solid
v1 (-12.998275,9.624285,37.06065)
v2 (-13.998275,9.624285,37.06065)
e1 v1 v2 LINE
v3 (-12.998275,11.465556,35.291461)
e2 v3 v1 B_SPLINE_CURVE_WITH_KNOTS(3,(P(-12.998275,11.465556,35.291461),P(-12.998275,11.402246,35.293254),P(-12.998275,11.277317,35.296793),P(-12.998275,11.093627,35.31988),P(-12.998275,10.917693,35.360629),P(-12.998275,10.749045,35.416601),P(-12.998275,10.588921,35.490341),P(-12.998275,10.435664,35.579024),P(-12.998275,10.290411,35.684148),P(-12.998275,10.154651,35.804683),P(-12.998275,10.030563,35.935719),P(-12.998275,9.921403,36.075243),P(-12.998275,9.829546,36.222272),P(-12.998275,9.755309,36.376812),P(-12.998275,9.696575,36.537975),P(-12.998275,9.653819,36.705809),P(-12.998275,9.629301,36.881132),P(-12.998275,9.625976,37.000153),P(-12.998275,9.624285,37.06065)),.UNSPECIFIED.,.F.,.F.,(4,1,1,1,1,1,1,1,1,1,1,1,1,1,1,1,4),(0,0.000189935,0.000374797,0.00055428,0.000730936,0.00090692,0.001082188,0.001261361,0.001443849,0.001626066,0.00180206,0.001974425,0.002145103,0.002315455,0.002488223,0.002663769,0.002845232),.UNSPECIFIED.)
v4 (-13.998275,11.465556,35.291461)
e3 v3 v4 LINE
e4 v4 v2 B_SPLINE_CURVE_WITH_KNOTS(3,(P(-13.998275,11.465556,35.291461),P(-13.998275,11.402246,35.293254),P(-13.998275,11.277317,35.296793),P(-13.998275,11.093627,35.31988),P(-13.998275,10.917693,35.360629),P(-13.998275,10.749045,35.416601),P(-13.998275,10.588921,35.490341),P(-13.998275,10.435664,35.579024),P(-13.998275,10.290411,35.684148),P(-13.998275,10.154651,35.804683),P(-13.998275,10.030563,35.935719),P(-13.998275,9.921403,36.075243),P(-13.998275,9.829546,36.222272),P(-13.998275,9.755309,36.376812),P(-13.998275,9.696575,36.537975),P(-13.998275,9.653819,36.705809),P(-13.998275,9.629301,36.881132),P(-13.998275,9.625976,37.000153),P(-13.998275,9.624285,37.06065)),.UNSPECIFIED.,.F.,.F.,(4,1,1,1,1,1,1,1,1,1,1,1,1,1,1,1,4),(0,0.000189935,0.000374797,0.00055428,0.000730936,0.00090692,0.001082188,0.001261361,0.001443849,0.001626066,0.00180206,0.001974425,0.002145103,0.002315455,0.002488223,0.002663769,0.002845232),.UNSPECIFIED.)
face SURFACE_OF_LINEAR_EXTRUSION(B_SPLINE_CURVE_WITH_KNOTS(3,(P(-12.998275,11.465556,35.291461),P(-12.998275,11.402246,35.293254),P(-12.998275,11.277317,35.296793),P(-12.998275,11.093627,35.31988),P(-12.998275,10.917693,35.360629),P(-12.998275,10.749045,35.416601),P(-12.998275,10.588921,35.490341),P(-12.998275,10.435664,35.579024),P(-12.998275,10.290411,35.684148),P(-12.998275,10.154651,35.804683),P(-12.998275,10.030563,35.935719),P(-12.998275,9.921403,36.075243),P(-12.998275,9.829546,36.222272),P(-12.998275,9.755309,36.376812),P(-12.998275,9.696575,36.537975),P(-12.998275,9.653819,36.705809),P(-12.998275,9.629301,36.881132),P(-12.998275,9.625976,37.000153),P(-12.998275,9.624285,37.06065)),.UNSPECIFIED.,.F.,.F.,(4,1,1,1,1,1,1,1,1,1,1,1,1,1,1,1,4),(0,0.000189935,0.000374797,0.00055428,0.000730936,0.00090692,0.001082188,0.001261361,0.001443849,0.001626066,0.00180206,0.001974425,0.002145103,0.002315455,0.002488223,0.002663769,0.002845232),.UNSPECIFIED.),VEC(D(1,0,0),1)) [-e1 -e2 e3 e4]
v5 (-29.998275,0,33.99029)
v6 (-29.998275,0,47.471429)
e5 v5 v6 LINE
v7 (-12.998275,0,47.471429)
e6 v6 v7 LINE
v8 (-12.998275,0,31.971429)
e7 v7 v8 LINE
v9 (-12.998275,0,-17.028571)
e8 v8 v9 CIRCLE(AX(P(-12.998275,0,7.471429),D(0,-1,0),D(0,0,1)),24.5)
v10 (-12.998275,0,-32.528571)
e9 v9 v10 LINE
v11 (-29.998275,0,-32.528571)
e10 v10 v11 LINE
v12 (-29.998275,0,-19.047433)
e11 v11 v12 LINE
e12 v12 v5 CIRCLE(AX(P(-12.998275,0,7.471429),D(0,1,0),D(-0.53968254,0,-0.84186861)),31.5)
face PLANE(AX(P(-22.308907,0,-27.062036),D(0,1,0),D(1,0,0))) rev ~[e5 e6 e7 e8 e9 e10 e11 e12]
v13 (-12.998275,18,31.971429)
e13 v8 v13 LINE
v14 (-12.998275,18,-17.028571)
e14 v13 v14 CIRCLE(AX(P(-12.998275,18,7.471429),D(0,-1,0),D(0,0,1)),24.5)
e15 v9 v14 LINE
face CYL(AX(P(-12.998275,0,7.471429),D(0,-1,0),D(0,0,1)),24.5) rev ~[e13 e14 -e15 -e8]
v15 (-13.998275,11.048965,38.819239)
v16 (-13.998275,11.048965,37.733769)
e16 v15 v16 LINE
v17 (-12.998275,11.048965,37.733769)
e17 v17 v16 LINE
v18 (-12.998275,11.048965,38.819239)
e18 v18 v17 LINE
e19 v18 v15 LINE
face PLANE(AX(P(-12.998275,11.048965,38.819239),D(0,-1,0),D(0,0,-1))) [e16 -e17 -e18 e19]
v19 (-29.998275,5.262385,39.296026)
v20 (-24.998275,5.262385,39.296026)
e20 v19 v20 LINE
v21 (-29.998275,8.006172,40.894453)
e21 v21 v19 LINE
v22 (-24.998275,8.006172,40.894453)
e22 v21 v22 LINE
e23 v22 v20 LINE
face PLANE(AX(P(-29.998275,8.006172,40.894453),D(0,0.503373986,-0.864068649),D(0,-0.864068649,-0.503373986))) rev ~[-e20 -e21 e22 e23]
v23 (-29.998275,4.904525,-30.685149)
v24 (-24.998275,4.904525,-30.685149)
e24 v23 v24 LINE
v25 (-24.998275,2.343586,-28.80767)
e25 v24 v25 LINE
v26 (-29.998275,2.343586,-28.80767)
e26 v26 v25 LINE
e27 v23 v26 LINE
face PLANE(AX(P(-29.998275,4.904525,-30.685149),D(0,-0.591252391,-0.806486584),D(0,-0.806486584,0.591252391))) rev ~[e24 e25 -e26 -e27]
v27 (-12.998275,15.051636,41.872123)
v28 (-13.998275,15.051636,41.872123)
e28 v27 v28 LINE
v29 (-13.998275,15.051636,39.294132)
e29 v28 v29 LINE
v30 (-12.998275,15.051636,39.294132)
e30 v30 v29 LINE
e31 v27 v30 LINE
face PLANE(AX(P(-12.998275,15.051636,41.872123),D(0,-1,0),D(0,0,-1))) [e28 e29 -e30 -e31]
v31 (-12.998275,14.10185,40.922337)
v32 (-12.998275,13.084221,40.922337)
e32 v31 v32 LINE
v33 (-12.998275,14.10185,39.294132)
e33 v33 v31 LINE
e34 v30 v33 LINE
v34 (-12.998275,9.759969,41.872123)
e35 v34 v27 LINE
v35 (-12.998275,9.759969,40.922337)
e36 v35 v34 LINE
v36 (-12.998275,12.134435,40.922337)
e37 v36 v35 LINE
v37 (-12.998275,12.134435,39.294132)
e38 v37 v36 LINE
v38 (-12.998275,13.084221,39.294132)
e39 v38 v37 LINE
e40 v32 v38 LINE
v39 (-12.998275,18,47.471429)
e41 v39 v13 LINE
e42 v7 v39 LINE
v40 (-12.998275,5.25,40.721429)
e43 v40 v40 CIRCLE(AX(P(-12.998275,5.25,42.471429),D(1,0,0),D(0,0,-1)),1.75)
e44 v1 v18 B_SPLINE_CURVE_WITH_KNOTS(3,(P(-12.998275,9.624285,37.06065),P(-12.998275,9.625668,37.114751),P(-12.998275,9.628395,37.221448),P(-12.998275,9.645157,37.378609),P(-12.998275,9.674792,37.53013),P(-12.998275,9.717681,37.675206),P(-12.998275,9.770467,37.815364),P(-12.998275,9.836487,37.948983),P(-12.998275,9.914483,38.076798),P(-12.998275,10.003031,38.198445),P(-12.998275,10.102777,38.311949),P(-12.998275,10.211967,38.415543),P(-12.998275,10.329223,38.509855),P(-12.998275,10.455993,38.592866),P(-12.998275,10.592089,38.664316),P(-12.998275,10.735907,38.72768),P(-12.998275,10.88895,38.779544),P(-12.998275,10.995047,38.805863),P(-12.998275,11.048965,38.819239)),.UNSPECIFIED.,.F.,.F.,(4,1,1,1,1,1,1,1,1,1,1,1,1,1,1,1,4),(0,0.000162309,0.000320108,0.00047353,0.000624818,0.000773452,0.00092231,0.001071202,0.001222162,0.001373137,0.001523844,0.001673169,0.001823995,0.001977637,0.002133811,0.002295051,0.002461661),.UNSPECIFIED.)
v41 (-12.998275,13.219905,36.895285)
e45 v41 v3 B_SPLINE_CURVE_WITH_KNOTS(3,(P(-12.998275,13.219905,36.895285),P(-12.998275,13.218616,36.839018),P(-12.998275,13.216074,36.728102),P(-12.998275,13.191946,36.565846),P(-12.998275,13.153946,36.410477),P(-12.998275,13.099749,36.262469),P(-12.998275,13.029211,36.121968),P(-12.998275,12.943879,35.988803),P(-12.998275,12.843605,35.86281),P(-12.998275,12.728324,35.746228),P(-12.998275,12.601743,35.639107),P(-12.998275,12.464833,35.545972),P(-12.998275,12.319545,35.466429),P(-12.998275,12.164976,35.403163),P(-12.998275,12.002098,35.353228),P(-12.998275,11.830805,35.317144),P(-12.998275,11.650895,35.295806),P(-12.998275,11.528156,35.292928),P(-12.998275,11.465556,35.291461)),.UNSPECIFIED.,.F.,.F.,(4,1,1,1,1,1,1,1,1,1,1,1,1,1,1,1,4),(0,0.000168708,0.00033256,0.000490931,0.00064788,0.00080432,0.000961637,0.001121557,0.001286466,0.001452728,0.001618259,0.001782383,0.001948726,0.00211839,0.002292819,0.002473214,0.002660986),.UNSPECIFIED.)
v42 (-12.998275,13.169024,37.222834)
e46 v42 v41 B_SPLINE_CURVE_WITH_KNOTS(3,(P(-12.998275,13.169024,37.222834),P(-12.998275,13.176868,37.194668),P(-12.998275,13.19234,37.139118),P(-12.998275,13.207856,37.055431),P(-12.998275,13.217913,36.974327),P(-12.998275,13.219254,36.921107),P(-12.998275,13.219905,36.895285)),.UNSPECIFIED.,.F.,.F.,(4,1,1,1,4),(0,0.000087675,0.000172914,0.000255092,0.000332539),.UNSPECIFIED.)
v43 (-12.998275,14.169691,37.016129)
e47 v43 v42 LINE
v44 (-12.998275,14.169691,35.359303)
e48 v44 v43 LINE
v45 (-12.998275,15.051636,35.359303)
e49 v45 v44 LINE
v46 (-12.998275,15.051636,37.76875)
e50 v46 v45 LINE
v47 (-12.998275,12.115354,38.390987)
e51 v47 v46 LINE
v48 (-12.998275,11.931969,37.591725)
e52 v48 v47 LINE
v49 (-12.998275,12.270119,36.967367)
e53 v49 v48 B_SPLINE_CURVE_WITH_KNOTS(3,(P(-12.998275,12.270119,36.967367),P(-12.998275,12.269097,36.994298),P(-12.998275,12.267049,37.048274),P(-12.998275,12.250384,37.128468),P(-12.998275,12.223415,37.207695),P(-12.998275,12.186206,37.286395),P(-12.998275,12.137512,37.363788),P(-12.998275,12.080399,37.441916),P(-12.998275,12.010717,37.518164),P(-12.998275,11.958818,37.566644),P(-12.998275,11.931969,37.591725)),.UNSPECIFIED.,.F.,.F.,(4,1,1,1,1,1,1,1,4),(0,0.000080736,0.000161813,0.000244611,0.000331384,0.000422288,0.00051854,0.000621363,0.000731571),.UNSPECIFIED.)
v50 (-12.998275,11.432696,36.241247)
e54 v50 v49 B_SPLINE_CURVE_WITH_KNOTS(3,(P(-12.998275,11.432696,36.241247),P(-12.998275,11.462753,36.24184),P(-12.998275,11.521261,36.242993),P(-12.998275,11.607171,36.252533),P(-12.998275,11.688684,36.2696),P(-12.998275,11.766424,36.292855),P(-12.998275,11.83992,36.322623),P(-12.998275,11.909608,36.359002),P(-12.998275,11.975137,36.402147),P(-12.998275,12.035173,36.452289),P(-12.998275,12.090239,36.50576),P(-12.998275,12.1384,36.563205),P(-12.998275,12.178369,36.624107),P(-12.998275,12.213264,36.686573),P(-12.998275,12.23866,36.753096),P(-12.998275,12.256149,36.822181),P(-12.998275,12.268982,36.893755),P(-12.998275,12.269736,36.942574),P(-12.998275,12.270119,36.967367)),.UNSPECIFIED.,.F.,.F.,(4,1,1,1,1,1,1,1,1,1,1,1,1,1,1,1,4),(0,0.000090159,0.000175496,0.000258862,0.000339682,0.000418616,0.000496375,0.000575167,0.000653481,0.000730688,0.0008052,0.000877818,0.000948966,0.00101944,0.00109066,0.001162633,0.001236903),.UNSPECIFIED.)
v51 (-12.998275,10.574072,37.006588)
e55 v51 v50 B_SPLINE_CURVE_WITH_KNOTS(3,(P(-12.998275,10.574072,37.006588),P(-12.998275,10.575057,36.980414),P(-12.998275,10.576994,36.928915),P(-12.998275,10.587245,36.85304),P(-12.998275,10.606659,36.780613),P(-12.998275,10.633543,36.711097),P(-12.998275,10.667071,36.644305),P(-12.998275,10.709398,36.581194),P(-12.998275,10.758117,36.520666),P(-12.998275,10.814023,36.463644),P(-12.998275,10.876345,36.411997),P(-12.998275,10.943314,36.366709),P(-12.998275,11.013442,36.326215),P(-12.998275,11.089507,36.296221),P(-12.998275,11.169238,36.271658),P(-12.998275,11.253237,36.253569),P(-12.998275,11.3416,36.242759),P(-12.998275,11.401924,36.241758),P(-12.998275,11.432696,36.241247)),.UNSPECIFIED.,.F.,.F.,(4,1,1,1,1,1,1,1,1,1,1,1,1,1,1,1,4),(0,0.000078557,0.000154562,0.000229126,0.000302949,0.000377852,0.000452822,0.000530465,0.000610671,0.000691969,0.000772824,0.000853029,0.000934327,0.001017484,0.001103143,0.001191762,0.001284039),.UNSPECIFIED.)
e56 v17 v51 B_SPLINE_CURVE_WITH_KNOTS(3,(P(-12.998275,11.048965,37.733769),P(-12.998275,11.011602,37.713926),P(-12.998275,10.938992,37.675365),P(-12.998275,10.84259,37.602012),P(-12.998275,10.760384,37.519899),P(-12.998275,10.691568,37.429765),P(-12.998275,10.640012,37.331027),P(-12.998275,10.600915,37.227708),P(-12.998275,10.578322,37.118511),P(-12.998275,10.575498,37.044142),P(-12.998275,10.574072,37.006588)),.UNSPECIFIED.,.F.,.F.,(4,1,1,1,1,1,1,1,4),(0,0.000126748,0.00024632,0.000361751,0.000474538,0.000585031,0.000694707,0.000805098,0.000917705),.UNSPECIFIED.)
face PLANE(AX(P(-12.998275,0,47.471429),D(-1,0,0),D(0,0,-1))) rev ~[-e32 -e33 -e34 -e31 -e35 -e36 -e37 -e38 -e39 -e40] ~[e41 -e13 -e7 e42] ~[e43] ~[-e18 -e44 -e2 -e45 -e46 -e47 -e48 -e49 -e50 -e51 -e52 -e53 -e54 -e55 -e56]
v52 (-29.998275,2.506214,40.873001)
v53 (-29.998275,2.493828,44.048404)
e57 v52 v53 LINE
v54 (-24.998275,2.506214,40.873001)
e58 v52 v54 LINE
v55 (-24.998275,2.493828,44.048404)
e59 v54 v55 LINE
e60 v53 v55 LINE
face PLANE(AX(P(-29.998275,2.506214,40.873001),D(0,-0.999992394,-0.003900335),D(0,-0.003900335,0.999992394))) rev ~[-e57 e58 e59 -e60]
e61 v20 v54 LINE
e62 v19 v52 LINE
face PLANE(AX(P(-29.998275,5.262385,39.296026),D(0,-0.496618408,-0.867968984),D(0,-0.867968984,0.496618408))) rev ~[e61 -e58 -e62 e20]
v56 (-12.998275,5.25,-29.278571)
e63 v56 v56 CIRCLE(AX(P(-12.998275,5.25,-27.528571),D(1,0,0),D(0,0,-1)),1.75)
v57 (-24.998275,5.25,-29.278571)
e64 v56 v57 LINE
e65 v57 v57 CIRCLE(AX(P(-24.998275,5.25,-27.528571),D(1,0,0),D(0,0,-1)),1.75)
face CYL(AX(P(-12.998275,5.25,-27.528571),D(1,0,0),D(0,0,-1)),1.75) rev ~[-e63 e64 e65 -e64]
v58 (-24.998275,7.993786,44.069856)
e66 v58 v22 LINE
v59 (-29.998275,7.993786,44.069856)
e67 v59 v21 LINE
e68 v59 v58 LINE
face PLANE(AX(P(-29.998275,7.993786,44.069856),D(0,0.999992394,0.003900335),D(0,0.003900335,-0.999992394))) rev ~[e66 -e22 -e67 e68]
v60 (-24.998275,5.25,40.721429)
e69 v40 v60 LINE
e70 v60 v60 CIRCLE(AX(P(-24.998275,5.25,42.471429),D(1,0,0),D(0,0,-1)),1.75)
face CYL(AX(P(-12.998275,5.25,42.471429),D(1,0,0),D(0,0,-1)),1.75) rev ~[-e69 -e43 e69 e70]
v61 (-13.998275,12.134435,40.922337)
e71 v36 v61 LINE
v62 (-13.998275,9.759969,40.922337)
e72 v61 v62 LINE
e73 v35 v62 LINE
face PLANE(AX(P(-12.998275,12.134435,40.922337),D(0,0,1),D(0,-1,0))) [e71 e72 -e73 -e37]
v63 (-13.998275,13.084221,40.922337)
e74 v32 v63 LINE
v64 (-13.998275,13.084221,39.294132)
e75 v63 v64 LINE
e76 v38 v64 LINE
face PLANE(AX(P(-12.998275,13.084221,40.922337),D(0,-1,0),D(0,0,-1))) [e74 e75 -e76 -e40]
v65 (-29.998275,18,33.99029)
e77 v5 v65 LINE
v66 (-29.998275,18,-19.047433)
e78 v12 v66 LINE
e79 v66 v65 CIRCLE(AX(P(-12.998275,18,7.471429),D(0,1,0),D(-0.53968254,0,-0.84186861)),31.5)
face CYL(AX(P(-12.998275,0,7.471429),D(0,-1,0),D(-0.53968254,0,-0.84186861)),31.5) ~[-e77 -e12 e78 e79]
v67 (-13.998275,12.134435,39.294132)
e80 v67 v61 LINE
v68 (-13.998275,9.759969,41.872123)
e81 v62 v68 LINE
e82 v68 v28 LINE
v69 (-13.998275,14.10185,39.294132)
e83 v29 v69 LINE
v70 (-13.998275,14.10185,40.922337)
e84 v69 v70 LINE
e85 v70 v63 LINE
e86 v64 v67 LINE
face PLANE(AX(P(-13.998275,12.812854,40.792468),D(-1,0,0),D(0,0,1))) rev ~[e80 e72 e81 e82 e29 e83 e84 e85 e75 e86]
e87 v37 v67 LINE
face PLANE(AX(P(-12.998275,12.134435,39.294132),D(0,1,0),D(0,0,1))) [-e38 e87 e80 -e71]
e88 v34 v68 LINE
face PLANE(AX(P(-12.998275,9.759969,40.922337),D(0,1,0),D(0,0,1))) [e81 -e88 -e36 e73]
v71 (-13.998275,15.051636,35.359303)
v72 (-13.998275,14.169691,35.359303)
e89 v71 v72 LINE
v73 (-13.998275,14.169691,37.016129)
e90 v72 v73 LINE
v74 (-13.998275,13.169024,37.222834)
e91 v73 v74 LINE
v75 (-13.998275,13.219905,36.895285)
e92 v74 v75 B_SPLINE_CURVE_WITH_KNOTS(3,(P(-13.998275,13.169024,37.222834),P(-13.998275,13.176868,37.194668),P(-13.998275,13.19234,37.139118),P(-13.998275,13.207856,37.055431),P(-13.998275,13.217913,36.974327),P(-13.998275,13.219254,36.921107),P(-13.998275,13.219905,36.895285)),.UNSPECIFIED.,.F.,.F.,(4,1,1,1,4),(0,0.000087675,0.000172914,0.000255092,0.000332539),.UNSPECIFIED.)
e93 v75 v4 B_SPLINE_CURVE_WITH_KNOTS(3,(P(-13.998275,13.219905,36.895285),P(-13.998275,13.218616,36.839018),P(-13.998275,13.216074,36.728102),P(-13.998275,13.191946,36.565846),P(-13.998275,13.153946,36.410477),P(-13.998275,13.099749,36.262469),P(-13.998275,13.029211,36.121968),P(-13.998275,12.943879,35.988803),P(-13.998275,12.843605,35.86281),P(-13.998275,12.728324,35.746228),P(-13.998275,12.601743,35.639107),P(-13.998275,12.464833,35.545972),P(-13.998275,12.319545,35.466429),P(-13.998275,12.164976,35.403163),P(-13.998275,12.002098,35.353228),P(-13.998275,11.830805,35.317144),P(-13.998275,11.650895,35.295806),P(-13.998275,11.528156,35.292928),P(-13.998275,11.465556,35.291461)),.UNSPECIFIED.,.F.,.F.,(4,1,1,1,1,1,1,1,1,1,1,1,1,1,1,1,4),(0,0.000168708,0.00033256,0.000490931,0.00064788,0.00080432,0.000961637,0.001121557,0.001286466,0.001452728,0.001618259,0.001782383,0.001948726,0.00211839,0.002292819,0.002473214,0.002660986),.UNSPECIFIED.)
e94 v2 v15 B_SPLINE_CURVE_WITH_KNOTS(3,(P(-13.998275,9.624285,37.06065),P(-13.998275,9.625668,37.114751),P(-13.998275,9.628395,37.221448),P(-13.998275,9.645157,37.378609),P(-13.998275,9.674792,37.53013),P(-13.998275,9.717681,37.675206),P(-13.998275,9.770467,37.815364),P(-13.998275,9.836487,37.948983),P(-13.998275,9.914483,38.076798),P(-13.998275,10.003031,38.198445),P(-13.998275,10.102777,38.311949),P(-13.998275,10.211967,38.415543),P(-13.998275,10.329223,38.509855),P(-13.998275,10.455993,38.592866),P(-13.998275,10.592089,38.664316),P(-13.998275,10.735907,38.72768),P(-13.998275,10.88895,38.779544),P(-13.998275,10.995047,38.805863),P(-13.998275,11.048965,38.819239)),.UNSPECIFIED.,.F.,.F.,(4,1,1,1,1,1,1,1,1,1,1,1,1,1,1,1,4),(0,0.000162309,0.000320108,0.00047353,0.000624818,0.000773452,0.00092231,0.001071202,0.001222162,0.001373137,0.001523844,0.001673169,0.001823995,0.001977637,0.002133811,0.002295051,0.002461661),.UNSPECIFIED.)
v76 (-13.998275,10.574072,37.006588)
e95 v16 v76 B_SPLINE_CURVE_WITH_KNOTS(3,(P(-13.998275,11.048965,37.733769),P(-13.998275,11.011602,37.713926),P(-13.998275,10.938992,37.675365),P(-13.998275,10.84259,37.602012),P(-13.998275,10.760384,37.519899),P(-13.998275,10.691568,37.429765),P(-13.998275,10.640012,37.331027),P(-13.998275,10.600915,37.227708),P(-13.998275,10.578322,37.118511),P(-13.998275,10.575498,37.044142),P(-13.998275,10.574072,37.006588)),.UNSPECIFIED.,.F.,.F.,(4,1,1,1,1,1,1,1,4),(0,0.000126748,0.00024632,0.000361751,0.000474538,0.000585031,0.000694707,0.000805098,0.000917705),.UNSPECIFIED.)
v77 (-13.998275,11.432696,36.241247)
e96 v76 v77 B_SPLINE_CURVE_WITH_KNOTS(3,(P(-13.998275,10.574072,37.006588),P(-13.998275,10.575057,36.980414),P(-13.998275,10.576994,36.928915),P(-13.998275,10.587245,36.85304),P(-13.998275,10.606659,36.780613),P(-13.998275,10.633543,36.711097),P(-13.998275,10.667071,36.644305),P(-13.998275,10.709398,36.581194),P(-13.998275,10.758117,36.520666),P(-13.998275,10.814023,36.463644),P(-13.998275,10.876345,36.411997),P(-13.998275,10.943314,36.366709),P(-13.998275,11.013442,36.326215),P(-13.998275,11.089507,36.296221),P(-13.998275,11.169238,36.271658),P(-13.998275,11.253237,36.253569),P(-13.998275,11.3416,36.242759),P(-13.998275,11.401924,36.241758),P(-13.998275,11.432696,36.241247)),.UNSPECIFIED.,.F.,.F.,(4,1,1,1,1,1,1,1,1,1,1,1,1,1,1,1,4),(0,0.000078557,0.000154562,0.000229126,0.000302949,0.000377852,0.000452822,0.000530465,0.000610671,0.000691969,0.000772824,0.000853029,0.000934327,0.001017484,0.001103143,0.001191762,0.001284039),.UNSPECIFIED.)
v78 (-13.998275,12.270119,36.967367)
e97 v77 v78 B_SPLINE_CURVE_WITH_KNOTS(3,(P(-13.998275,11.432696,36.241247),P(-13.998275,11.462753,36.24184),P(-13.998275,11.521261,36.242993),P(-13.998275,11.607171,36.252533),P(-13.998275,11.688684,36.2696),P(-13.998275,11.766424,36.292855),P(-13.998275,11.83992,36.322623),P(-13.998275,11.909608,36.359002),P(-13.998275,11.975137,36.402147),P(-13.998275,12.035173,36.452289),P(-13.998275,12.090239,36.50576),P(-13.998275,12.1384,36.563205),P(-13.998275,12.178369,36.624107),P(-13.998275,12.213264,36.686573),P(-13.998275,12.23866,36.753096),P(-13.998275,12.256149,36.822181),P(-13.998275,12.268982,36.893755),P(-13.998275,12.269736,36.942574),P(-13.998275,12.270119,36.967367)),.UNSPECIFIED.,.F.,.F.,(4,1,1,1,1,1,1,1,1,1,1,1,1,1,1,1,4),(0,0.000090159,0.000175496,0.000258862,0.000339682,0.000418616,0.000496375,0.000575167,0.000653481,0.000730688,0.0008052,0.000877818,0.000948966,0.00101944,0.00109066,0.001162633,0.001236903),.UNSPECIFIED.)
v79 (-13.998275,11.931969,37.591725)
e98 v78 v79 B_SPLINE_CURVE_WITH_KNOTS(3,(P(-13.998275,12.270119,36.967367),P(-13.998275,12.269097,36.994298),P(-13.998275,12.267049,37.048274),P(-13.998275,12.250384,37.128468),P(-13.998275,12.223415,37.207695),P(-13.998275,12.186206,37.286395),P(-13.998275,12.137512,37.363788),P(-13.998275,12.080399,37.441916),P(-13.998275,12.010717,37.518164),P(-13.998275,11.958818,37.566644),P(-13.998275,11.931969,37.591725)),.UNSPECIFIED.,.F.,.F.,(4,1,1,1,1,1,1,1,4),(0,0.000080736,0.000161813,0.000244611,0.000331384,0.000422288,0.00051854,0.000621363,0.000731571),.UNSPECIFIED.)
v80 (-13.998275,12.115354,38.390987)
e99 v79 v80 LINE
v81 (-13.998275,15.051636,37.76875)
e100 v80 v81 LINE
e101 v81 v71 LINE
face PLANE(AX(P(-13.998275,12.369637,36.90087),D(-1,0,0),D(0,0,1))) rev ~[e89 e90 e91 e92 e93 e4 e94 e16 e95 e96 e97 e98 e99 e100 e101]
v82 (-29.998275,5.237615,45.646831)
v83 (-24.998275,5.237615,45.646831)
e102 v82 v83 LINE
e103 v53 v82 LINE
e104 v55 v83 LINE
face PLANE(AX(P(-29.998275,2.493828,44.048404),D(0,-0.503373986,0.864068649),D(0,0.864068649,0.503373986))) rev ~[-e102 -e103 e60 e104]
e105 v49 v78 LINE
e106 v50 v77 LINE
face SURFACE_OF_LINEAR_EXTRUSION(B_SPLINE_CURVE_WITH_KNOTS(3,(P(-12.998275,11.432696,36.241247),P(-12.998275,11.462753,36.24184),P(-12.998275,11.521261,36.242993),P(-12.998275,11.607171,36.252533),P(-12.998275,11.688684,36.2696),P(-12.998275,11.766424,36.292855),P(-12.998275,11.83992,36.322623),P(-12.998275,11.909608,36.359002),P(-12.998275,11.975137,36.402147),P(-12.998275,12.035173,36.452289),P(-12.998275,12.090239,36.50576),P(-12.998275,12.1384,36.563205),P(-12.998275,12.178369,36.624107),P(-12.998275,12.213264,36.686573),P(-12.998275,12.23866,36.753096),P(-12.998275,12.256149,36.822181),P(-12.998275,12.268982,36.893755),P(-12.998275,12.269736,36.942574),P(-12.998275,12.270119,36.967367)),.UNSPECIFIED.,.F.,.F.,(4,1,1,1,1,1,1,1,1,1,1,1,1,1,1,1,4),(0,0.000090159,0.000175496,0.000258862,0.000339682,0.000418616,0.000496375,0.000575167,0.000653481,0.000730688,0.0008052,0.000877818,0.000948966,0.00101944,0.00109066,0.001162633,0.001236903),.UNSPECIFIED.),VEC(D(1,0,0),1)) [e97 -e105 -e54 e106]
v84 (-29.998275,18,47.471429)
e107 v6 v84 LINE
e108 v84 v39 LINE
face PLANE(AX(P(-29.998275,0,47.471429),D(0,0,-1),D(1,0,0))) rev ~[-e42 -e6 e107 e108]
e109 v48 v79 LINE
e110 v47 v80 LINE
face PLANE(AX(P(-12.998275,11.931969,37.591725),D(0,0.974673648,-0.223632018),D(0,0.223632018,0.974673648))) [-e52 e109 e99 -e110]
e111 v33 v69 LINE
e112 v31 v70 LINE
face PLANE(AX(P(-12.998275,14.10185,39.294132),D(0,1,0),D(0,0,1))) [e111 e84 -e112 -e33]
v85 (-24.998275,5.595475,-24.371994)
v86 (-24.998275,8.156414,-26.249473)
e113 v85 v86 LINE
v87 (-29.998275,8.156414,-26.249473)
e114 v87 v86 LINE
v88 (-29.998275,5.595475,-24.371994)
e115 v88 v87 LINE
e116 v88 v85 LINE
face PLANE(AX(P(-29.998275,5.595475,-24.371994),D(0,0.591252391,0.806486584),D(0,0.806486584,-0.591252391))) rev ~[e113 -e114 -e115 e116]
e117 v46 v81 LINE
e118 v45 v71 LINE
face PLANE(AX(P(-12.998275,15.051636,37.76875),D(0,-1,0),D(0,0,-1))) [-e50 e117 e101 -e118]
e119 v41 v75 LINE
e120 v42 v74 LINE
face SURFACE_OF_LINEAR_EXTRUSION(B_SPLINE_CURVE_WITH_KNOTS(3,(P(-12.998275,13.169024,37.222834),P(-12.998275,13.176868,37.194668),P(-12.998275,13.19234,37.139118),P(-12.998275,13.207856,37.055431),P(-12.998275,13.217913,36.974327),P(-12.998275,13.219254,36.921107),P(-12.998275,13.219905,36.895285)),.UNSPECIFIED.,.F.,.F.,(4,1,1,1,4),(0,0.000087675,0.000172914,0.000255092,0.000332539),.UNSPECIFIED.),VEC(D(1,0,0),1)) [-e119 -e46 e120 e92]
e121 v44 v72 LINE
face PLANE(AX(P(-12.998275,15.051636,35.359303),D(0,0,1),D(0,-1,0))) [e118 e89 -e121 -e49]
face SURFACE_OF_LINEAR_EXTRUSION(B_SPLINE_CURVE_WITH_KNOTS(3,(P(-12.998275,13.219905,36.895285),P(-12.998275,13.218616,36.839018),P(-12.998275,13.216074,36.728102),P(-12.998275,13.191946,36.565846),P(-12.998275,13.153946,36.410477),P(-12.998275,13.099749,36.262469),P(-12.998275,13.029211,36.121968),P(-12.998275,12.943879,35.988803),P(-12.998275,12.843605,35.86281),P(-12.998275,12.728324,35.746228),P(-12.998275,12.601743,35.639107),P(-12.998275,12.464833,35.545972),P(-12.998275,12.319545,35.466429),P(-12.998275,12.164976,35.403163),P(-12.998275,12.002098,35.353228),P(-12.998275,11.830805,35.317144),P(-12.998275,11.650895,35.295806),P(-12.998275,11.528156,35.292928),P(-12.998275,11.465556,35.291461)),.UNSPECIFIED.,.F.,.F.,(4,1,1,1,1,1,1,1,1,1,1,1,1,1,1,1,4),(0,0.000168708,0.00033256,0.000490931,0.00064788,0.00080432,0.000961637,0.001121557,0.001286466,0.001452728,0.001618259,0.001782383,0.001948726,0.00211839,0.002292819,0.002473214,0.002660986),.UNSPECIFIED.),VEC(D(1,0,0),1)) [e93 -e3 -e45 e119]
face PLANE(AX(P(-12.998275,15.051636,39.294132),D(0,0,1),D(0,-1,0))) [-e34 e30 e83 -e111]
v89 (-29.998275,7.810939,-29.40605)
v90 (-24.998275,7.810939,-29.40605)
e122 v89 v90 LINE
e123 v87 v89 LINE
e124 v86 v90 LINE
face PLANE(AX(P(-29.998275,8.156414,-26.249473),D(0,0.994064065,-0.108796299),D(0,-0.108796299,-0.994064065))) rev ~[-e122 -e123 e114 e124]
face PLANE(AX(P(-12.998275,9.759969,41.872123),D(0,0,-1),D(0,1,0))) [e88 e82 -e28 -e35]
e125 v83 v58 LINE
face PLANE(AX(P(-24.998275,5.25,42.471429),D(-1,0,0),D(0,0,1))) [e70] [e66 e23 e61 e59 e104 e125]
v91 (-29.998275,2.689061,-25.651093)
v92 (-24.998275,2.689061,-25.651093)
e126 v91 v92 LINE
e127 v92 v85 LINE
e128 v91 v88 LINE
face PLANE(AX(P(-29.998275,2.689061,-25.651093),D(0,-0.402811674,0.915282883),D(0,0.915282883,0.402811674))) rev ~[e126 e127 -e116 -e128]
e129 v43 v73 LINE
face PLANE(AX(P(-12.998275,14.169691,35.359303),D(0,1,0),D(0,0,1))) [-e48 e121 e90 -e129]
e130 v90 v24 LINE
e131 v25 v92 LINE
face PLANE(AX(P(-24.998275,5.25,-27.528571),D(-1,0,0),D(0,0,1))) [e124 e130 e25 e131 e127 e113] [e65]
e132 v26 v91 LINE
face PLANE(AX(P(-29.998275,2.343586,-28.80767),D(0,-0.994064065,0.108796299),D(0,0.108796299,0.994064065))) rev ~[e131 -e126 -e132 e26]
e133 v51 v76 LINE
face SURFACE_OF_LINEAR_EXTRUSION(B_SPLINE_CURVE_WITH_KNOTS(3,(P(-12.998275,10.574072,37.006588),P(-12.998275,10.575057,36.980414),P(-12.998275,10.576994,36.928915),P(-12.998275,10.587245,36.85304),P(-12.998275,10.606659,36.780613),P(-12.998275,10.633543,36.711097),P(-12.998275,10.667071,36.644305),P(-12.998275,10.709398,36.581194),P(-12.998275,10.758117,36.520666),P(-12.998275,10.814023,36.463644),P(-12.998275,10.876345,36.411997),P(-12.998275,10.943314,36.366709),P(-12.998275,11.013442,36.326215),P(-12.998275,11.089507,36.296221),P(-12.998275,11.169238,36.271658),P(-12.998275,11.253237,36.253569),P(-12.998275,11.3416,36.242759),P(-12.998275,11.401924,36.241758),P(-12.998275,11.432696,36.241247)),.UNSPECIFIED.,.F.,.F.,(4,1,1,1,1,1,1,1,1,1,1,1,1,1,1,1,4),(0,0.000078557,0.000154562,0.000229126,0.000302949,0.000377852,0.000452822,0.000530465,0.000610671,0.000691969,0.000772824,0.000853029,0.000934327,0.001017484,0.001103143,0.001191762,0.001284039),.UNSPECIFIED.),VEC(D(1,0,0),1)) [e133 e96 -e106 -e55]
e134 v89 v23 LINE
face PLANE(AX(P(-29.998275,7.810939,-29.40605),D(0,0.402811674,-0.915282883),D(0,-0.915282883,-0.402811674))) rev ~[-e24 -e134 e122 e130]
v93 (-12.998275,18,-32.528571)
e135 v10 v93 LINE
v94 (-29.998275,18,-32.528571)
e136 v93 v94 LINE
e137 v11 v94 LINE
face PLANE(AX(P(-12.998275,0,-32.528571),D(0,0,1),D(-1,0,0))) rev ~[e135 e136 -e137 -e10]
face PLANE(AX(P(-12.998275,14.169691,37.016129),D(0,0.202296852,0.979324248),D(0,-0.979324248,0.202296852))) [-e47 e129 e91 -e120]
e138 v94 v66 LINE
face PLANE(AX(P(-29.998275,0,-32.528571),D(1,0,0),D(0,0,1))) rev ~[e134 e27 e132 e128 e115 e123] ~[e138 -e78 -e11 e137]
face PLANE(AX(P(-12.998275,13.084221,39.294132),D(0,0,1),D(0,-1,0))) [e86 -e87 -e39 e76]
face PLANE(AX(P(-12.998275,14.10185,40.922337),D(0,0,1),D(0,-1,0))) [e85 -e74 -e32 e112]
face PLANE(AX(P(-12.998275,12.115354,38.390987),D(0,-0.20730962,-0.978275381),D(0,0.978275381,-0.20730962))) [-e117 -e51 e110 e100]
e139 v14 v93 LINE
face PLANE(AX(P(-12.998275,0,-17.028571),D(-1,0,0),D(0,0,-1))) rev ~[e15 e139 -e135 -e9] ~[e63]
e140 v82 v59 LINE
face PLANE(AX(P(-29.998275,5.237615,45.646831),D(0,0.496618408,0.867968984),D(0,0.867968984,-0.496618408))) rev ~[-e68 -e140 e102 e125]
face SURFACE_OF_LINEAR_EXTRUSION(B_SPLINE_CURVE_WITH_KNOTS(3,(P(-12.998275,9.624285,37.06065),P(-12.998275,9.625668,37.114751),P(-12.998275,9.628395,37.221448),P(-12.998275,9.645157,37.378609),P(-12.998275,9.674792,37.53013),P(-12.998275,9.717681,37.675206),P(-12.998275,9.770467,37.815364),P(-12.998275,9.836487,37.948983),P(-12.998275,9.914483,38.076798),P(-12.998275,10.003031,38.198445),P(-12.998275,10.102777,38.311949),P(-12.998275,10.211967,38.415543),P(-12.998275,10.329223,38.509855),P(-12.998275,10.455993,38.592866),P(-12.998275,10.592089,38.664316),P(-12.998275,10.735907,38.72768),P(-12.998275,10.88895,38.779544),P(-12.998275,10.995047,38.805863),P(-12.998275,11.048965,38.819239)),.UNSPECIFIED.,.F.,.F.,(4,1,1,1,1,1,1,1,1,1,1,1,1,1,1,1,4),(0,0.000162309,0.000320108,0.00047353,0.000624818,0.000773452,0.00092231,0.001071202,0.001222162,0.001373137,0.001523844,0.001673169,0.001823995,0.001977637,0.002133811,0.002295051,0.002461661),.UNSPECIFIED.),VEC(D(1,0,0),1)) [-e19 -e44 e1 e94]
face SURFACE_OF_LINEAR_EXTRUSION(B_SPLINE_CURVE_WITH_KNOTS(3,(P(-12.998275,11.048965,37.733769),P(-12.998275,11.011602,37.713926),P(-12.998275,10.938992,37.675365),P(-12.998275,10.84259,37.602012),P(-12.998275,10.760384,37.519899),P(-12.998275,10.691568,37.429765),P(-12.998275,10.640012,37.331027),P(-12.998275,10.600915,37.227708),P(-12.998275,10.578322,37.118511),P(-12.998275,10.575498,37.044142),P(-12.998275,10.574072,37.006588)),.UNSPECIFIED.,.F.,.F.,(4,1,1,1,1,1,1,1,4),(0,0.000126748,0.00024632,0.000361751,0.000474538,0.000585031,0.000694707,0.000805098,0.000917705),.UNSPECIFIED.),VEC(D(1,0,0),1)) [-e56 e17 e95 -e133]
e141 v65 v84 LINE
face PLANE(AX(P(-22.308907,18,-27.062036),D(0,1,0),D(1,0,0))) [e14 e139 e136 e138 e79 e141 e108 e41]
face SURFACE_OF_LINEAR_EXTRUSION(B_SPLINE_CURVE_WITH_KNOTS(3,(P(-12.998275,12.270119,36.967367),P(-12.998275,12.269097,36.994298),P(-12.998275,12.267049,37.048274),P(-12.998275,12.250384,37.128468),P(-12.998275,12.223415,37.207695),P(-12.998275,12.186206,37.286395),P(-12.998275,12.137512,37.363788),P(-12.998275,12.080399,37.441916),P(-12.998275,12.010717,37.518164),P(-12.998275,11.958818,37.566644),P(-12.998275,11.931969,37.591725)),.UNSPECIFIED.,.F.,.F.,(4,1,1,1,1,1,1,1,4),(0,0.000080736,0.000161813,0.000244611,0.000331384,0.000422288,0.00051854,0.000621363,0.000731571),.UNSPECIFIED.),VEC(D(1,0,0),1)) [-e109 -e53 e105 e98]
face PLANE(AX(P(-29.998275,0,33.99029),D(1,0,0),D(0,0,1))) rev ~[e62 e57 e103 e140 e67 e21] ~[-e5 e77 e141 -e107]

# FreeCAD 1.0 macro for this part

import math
import FreeCAD as App
import Part
import Sketcher

doc = App.newDocument("Part")
body = doc.addObject("PartDesign::Body", "Body")

# Sketch on XZ plane
sketch1 = doc.addObject("Sketcher::SketchObject", "Sketch")
body.addObject(sketch1)
sketch1.AttachmentSupport = (doc.XZ_Plane, [""])
sketch1.MapMode = "FlatFace"
sketch1.addGeometry(Part.LineSegment(App.Vector(-12.998275, -32.528571, 0), App.Vector(-29.998275, -32.528571, 0)), False)
sketch1.addGeometry(Part.LineSegment(App.Vector(-29.998275, -32.528571, 0), App.Vector(-29.998275, -19.047433, 0)), False)
sketch1.addGeometry(Part.ArcOfCircle(Part.Circle(App.Vector(-12.998275, 7.471429, 0), App.Vector(0, 0, 1), 31.5), math.radians(122.662031), math.radians(237.337969)), False)
sketch1.addGeometry(Part.LineSegment(App.Vector(-29.998275, 33.99029, 0), App.Vector(-29.998275, 47.471429, 0)), False)
sketch1.addGeometry(Part.LineSegment(App.Vector(-29.998275, 47.471429, 0), App.Vector(-12.998275, 47.471429, 0)), False)
sketch1.addGeometry(Part.LineSegment(App.Vector(-12.998275, 47.471429, 0), App.Vector(-12.998275, 31.971429, 0)), False)
sketch1.addGeometry(Part.ArcOfCircle(Part.Circle(App.Vector(-12.998275, 7.471429, 0), App.Vector(0, 0, 1), 24.5), math.radians(90), math.radians(270)), False)
sketch1.addGeometry(Part.LineSegment(App.Vector(-12.998275, -17.028571, 0), App.Vector(-12.998275, -32.528571, 0)), False)
sketch1.addConstraint(Sketcher.Constraint("Coincident", 0, 2, 1, 1))
sketch1.addConstraint(Sketcher.Constraint("Coincident", 1, 2, 2, 2))
sketch1.addConstraint(Sketcher.Constraint("Coincident", 2, 1, 3, 1))
sketch1.addConstraint(Sketcher.Constraint("Coincident", 3, 2, 4, 1))
sketch1.addConstraint(Sketcher.Constraint("Coincident", 4, 2, 5, 1))
sketch1.addConstraint(Sketcher.Constraint("Coincident", 5, 2, 6, 1))
sketch1.addConstraint(Sketcher.Constraint("Coincident", 6, 2, 7, 1))
sketch1.addConstraint(Sketcher.Constraint("Coincident", 7, 2, 0, 1))
sketch1.addConstraint(Sketcher.Constraint("Horizontal", 0))
sketch1.addConstraint(Sketcher.Constraint("Vertical", 1))
sketch1.addConstraint(Sketcher.Constraint("Vertical", 3))
sketch1.addConstraint(Sketcher.Constraint("Horizontal", 4))
sketch1.addConstraint(Sketcher.Constraint("Vertical", 5))
sketch1.addConstraint(Sketcher.Constraint("Vertical", 7))
sketch1.addConstraint(Sketcher.Constraint("Coincident", 6, 3, 2, 3))
sketch1.addConstraint(Sketcher.Constraint("Vertical", 1, 2, 2, 1))
sketch1.addConstraint(Sketcher.Constraint("Vertical", 6, 3, 4, 2))
sketch1.addConstraint(Sketcher.Constraint("Vertical", 5, 2, 6, 2))
sketch1.addConstraint(Sketcher.Constraint("Equal", 1, 3))
sketch1.addConstraint(Sketcher.Constraint("Radius", 2, 31.5))
sketch1.addConstraint(Sketcher.Constraint("Radius", 6, 24.5))
sketch1.addConstraint(Sketcher.Constraint("DistanceX", 0, 2, 0, 1, 17.0))
sketch1.addConstraint(Sketcher.Constraint("DistanceY", 5, 2, 5, 1, 15.5))
sketch1.addConstraint(Sketcher.Constraint("DistanceY", -1, 1, 2, 3, 7.471429))
sketch1.addConstraint(Sketcher.Constraint("DistanceX", 2, 3, -1, 1, 12.998275))
pad1 = doc.addObject("PartDesign::Pad", "Pad")
body.addObject(pad1)
pad1.Profile = sketch1
pad1.Length = 18
pad1.Reversed = True

# Sketch on YZ plane
sketch2 = doc.addObject("Sketcher::SketchObject", "Sketch001")
body.addObject(sketch2)
sketch2.AttachmentSupport = (doc.YZ_Plane, [""])
sketch2.MapMode = "FlatFace"
sketch2.AttachmentOffset = App.Placement(App.Vector(0, 0, -12.998275), App.Rotation())
sketch2.addGeometry(Part.Circle(App.Vector(5.25, 42.471429, 0), App.Vector(0, 0, 1), 1.75), False)
sketch2.addGeometry(Part.Circle(App.Vector(5.25, -27.528571, 0), App.Vector(0, 0, 1), 1.75), False)
sketch2.addConstraint(Sketcher.Constraint("Equal", 0, 1))
sketch2.addConstraint(Sketcher.Constraint("Vertical", 0, 3, 1, 3))
sketch2.addConstraint(Sketcher.Constraint("Diameter", 0, 3.5))
sketch2.addConstraint(Sketcher.Constraint("DistanceY", 1, 3, 0, 3, 70.0))
sketch2.addConstraint(Sketcher.Constraint("DistanceX", -1, 1, 0, 3, 5.25))
sketch2.addConstraint(Sketcher.Constraint("DistanceY", -1, 1, 0, 3, 42.471429))
pocket1 = doc.addObject("PartDesign::Pocket", "Pocket")
body.addObject(pocket1)
pocket1.Profile = sketch2
pocket1.Type = "ThroughAll"

# Sketch on YZ plane
sketch3 = doc.addObject("Sketcher::SketchObject", "Sketch002")
body.addObject(sketch3)
sketch3.AttachmentSupport = (doc.YZ_Plane, [""])
sketch3.MapMode = "FlatFace"
sketch3.AttachmentOffset = App.Placement(App.Vector(0, 0, -12.998275), App.Rotation())
sketch3.addGeometry(Part.LineSegment(App.Vector(15.051636, 39.294132, 0), App.Vector(15.051636, 41.872123, 0)), False)
sketch3.addGeometry(Part.LineSegment(App.Vector(15.051636, 41.872123, 0), App.Vector(9.759969, 41.872123, 0)), False)
sketch3.addGeometry(Part.LineSegment(App.Vector(9.759969, 41.872123, 0), App.Vector(9.759969, 40.922337, 0)), False)
sketch3.addGeometry(Part.LineSegment(App.Vector(9.759969, 40.922337, 0), App.Vector(12.134435, 40.922337, 0)), False)
sketch3.addGeometry(Part.LineSegment(App.Vector(12.134435, 40.922337, 0), App.Vector(12.134435, 39.294132, 0)), False)
sketch3.addGeometry(Part.LineSegment(App.Vector(12.134435, 39.294132, 0), App.Vector(13.084221, 39.294132, 0)), False)
sketch3.addGeometry(Part.LineSegment(App.Vector(13.084221, 39.294132, 0), App.Vector(13.084221, 40.922337, 0)), False)
sketch3.addGeometry(Part.LineSegment(App.Vector(13.084221, 40.922337, 0), App.Vector(14.10185, 40.922337, 0)), False)
sketch3.addGeometry(Part.LineSegment(App.Vector(14.10185, 40.922337, 0), App.Vector(14.10185, 39.294132, 0)), False)
sketch3.addGeometry(Part.LineSegment(App.Vector(14.10185, 39.294132, 0), App.Vector(15.051636, 39.294132, 0)), False)
sketch3.addGeometry(Part.LineSegment(App.Vector(15.051636, 35.359303, 0), App.Vector(15.051636, 37.76875, 0)), False)
sketch3.addGeometry(Part.LineSegment(App.Vector(15.051636, 37.76875, 0), App.Vector(12.115354, 38.390987, 0)), False)
sketch3.addGeometry(Part.LineSegment(App.Vector(12.115354, 38.390987, 0), App.Vector(11.931969, 37.591725, 0)), False)
sketch3.addGeometry(Part.BSplineCurve([App.Vector(12.270119, 36.967367, 0), App.Vector(12.269097, 36.994298, 0), App.Vector(12.267049, 37.048274, 0), App.Vector(12.250384, 37.128468, 0), App.Vector(12.223415, 37.207695, 0), App.Vector(12.186206, 37.286395, 0), App.Vector(12.137512, 37.363788, 0), App.Vector(12.080399, 37.441916, 0), App.Vector(12.010717, 37.518164, 0), App.Vector(11.958818, 37.566644, 0), App.Vector(11.931969, 37.591725, 0)], [4, 1, 1, 1, 1, 1, 1, 1, 4], [0, 0.000080736, 0.000161813, 0.000244611, 0.000331384, 0.000422288, 0.00051854, 0.000621363, 0.000731571], False, 3, [1, 1, 1, 1, 1, 1, 1, 1, 1, 1, 1], False), False)
sketch3.addGeometry(Part.BSplineCurve([App.Vector(11.432696, 36.241247, 0), App.Vector(11.462753, 36.24184, 0), App.Vector(11.521261, 36.242993, 0), App.Vector(11.607171, 36.252533, 0), App.Vector(11.688684, 36.2696, 0), App.Vector(11.766424, 36.292855, 0), App.Vector(11.83992, 36.322623, 0), App.Vector(11.909608, 36.359002, 0), App.Vector(11.975137, 36.402147, 0), App.Vector(12.035173, 36.452289, 0), App.Vector(12.090239, 36.50576, 0), App.Vector(12.1384, 36.563205, 0), App.Vector(12.178369, 36.624107, 0), App.Vector(12.213264, 36.686573, 0), App.Vector(12.23866, 36.753096, 0), App.Vector(12.256149, 36.822181, 0), App.Vector(12.268982, 36.893755, 0), App.Vector(12.269736, 36.942574, 0), App.Vector(12.270119, 36.967367, 0)], [4, 1, 1, 1, 1, 1, 1, 1, 1, 1, 1, 1, 1, 1, 1, 1, 4], [0, 0.000090159, 0.000175496, 0.000258862, 0.000339682, 0.000418616, 0.000496375, 0.000575167, 0.000653481, 0.000730688, 0.0008052, 0.000877818, 0.000948966, 0.00101944, 0.00109066, 0.001162633, 0.001236903], False, 3, [1, 1, 1, 1, 1, 1, 1, 1, 1, 1, 1, 1, 1, 1, 1, 1, 1, 1, 1], False), False)
sketch3.addGeometry(Part.BSplineCurve([App.Vector(10.574072, 37.006588, 0), App.Vector(10.575057, 36.980414, 0), App.Vector(10.576994, 36.928915, 0), App.Vector(10.587245, 36.85304, 0), App.Vector(10.606659, 36.780613, 0), App.Vector(10.633543, 36.711097, 0), App.Vector(10.667071, 36.644305, 0), App.Vector(10.709398, 36.581194, 0), App.Vector(10.758117, 36.520666, 0), App.Vector(10.814023, 36.463644, 0), App.Vector(10.876345, 36.411997, 0), App.Vector(10.943314, 36.366709, 0), App.Vector(11.013442, 36.326215, 0), App.Vector(11.089507, 36.296221, 0), App.Vector(11.169238, 36.271658, 0), App.Vector(11.253237, 36.253569, 0), App.Vector(11.3416, 36.242759, 0), App.Vector(11.401924, 36.241758, 0), App.Vector(11.432696, 36.241247, 0)], [4, 1, 1, 1, 1, 1, 1, 1, 1, 1, 1, 1, 1, 1, 1, 1, 4], [0, 0.000078557, 0.000154562, 0.000229126, 0.000302949, 0.000377852, 0.000452822, 0.000530465, 0.000610671, 0.000691969, 0.000772824, 0.000853029, 0.000934327, 0.001017484, 0.001103143, 0.001191762, 0.001284039], False, 3, [1, 1, 1, 1, 1, 1, 1, 1, 1, 1, 1, 1, 1, 1, 1, 1, 1, 1, 1], False), False)
sketch3.addGeometry(Part.BSplineCurve([App.Vector(11.048965, 37.733769, 0), App.Vector(11.011602, 37.713926, 0), App.Vector(10.938992, 37.675365, 0), App.Vector(10.84259, 37.602012, 0), App.Vector(10.760384, 37.519899, 0), App.Vector(10.691568, 37.429765, 0), App.Vector(10.640012, 37.331027, 0), App.Vector(10.600915, 37.227708, 0), App.Vector(10.578322, 37.118511, 0), App.Vector(10.575498, 37.044142, 0), App.Vector(10.574072, 37.006588, 0)], [4, 1, 1, 1, 1, 1, 1, 1, 4], [0, 0.000126748, 0.00024632, 0.000361751, 0.000474538, 0.000585031, 0.000694707, 0.000805098, 0.000917705], False, 3, [1, 1, 1, 1, 1, 1, 1, 1, 1, 1, 1], False), False)
sketch3.addGeometry(Part.LineSegment(App.Vector(11.048965, 37.733769, 0), App.Vector(11.048965, 38.819239, 0)), False)
sketch3.addGeometry(Part.BSplineCurve([App.Vector(9.624285, 37.06065, 0), App.Vector(9.625668, 37.114751, 0), App.Vector(9.628395, 37.221448, 0), App.Vector(9.645157, 37.378609, 0), App.Vector(9.674792, 37.53013, 0), App.Vector(9.717681, 37.675206, 0), App.Vector(9.770467, 37.815364, 0), App.Vector(9.836487, 37.948983, 0), App.Vector(9.914483, 38.076798, 0), App.Vector(10.003031, 38.198445, 0), App.Vector(10.102777, 38.311949, 0), App.Vector(10.211967, 38.415543, 0), App.Vector(10.329223, 38.509855, 0), App.Vector(10.455993, 38.592866, 0), App.Vector(10.592089, 38.664316, 0), App.Vector(10.735907, 38.72768, 0), App.Vector(10.88895, 38.779544, 0), App.Vector(10.995047, 38.805863, 0), App.Vector(11.048965, 38.819239, 0)], [4, 1, 1, 1, 1, 1, 1, 1, 1, 1, 1, 1, 1, 1, 1, 1, 4], [0, 0.000162309, 0.000320108, 0.00047353, 0.000624818, 0.000773452, 0.00092231, 0.001071202, 0.001222162, 0.001373137, 0.001523844, 0.001673169, 0.001823995, 0.001977637, 0.002133811, 0.002295051, 0.002461661], False, 3, [1, 1, 1, 1, 1, 1, 1, 1, 1, 1, 1, 1, 1, 1, 1, 1, 1, 1, 1], False), False)
sketch3.addGeometry(Part.BSplineCurve([App.Vector(11.465556, 35.291461, 0), App.Vector(11.402246, 35.293254, 0), App.Vector(11.277317, 35.296793, 0), App.Vector(11.093627, 35.31988, 0), App.Vector(10.917693, 35.360629, 0), App.Vector(10.749045, 35.416601, 0), App.Vector(10.588921, 35.490341, 0), App.Vector(10.435664, 35.579024, 0), App.Vector(10.290411, 35.684148, 0), App.Vector(10.154651, 35.804683, 0), App.Vector(10.030563, 35.935719, 0), App.Vector(9.921403, 36.075243, 0), App.Vector(9.829546, 36.222272, 0), App.Vector(9.755309, 36.376812, 0), App.Vector(9.696575, 36.537975, 0), App.Vector(9.653819, 36.705809, 0), App.Vector(9.629301, 36.881132, 0), App.Vector(9.625976, 37.000153, 0), App.Vector(9.624285, 37.06065, 0)], [4, 1, 1, 1, 1, 1, 1, 1, 1, 1, 1, 1, 1, 1, 1, 1, 4], [0, 0.000189935, 0.000374797, 0.00055428, 0.000730936, 0.00090692, 0.001082188, 0.001261361, 0.001443849, 0.001626066, 0.00180206, 0.001974425, 0.002145103, 0.002315455, 0.002488223, 0.002663769, 0.002845232], False, 3, [1, 1, 1, 1, 1, 1, 1, 1, 1, 1, 1, 1, 1, 1, 1, 1, 1, 1, 1], False), False)
sketch3.addGeometry(Part.BSplineCurve([App.Vector(13.219905, 36.895285, 0), App.Vector(13.218616, 36.839018, 0), App.Vector(13.216074, 36.728102, 0), App.Vector(13.191946, 36.565846, 0), App.Vector(13.153946, 36.410477, 0), App.Vector(13.099749, 36.262469, 0), App.Vector(13.029211, 36.121968, 0), App.Vector(12.943879, 35.988803, 0), App.Vector(12.843605, 35.86281, 0), App.Vector(12.728324, 35.746228, 0), App.Vector(12.601743, 35.639107, 0), App.Vector(12.464833, 35.545972, 0), App.Vector(12.319545, 35.466429, 0), App.Vector(12.164976, 35.403163, 0), App.Vector(12.002098, 35.353228, 0), App.Vector(11.830805, 35.317144, 0), App.Vector(11.650895, 35.295806, 0), App.Vector(11.528156, 35.292928, 0), App.Vector(11.465556, 35.291461, 0)], [4, 1, 1, 1, 1, 1, 1, 1, 1, 1, 1, 1, 1, 1, 1, 1, 4], [0, 0.000168708, 0.00033256, 0.000490931, 0.00064788, 0.00080432, 0.000961637, 0.001121557, 0.001286466, 0.001452728, 0.001618259, 0.001782383, 0.001948726, 0.00211839, 0.002292819, 0.002473214, 0.002660986], False, 3, [1, 1, 1, 1, 1, 1, 1, 1, 1, 1, 1, 1, 1, 1, 1, 1, 1, 1, 1], False), False)
sketch3.addGeometry(Part.BSplineCurve([App.Vector(13.169024, 37.222834, 0), App.Vector(13.176868, 37.194668, 0), App.Vector(13.19234, 37.139118, 0), App.Vector(13.207856, 37.055431, 0), App.Vector(13.217913, 36.974327, 0), App.Vector(13.219254, 36.921107, 0), App.Vector(13.219905, 36.895285, 0)], [4, 1, 1, 1, 4], [0, 0.000087675, 0.000172914, 0.000255092, 0.000332539], False, 3, [1, 1, 1, 1, 1, 1, 1], False), False)
sketch3.addGeometry(Part.LineSegment(App.Vector(13.169024, 37.222834, 0), App.Vector(14.169691, 37.016129, 0)), False)
sketch3.addGeometry(Part.LineSegment(App.Vector(14.169691, 37.016129, 0), App.Vector(14.169691, 35.359303, 0)), False)
sketch3.addGeometry(Part.LineSegment(App.Vector(14.169691, 35.359303, 0), App.Vector(15.051636, 35.359303, 0)), False)
sketch3.addConstraint(Sketcher.Constraint("Block", 13))
sketch3.addConstraint(Sketcher.Constraint("Block", 14))
sketch3.addConstraint(Sketcher.Constraint("Block", 15))
sketch3.addConstraint(Sketcher.Constraint("Block", 16))
sketch3.addConstraint(Sketcher.Constraint("Block", 18))
sketch3.addConstraint(Sketcher.Constraint("Block", 19))
sketch3.addConstraint(Sketcher.Constraint("Block", 20))
sketch3.addConstraint(Sketcher.Constraint("Block", 21))
sketch3.addConstraint(Sketcher.Constraint("Coincident", 0, 2, 1, 1))
sketch3.addConstraint(Sketcher.Constraint("Coincident", 1, 2, 2, 1))
sketch3.addConstraint(Sketcher.Constraint("Coincident", 2, 2, 3, 1))
sketch3.addConstraint(Sketcher.Constraint("Coincident", 3, 2, 4, 1))
sketch3.addConstraint(Sketcher.Constraint("Coincident", 4, 2, 5, 1))
sketch3.addConstraint(Sketcher.Constraint("Coincident", 5, 2, 6, 1))
sketch3.addConstraint(Sketcher.Constraint("Coincident", 6, 2, 7, 1))
sketch3.addConstraint(Sketcher.Constraint("Coincident", 7, 2, 8, 1))
sketch3.addConstraint(Sketcher.Constraint("Coincident", 8, 2, 9, 1))
sketch3.addConstraint(Sketcher.Constraint("Coincident", 9, 2, 0, 1))
sketch3.addConstraint(Sketcher.Constraint("Coincident", 10, 2, 11, 1))
sketch3.addConstraint(Sketcher.Constraint("Coincident", 11, 2, 12, 1))
sketch3.addConstraint(Sketcher.Constraint("Coincident", 12, 2, 13, 2))
sketch3.addConstraint(Sketcher.Constraint("Coincident", 16, 1, 17, 1))
sketch3.addConstraint(Sketcher.Constraint("Coincident", 17, 2, 18, 2))
sketch3.addConstraint(Sketcher.Constraint("Coincident", 21, 1, 22, 1))
sketch3.addConstraint(Sketcher.Constraint("Coincident", 22, 2, 23, 1))
sketch3.addConstraint(Sketcher.Constraint("Coincident", 23, 2, 24, 1))
sketch3.addConstraint(Sketcher.Constraint("Coincident", 24, 2, 10, 1))
sketch3.addConstraint(Sketcher.Constraint("Vertical", 0))
sketch3.addConstraint(Sketcher.Constraint("Horizontal", 1))
sketch3.addConstraint(Sketcher.Constraint("Vertical", 2))
sketch3.addConstraint(Sketcher.Constraint("Horizontal", 3))
sketch3.addConstraint(Sketcher.Constraint("Vertical", 4))
sketch3.addConstraint(Sketcher.Constraint("Horizontal", 5))
sketch3.addConstraint(Sketcher.Constraint("Vertical", 6))
sketch3.addConstraint(Sketcher.Constraint("Horizontal", 7))
sketch3.addConstraint(Sketcher.Constraint("Vertical", 8))
sketch3.addConstraint(Sketcher.Constraint("Horizontal", 9))
sketch3.addConstraint(Sketcher.Constraint("Vertical", 10))
sketch3.addConstraint(Sketcher.Constraint("Vertical", 23))
sketch3.addConstraint(Sketcher.Constraint("Horizontal", 24))
sketch3.addConstraint(Sketcher.Constraint("DistanceX", 7, 1, 7, 2, 1.017628))
sketch3.addConstraint(Sketcher.Constraint("DistanceY", 0, 1, 0, 2, 2.577991))
sketch3.addConstraint(Sketcher.Constraint("DistanceX", 3, 2, 0, 2, 2.917201))
sketch3.addConstraint(Sketcher.Constraint("DistanceX", 4, 2, 10, 2, 2.917201))
sketch3.addConstraint(Sketcher.Constraint("DistanceY", 17, 2, 3, 2, 2.103098))
sketch3.addConstraint(Sketcher.Constraint("Distance", 12, 0.820031))
sketch3.addConstraint(Sketcher.Constraint("DistanceX", 1, 2, 1, 1, 5.291667))
sketch3.addConstraint(Sketcher.Constraint("DistanceX", 5, 1, 5, 2, 0.949786))
sketch3.addConstraint(Sketcher.Constraint("DistanceX", 24, 1, 24, 2, 0.881944))
sketch3.addConstraint(Sketcher.Constraint("DistanceY", 2, 2, 2, 1, 0.949786))
sketch3.addConstraint(Sketcher.Constraint("DistanceY", 4, 2, 4, 1, 1.628205))
sketch3.addConstraint(Sketcher.Constraint("DistanceY", 6, 1, 6, 2, 1.628205))
sketch3.addConstraint(Sketcher.Constraint("DistanceY", 10, 1, 10, 2, 2.409447))
sketch3.addConstraint(Sketcher.Constraint("DistanceY", 23, 2, 23, 1, 1.656826))
sketch3.addConstraint(Sketcher.Constraint("DistanceX", -1, 1, 1, 2, 9.759969))
sketch3.addConstraint(Sketcher.Constraint("DistanceY", -1, 1, 10, 2, 37.76875))
sketch3.addConstraint(Sketcher.Constraint("DistanceX", 11, 2, 4, 2, 0.019081))
pocket2 = doc.addObject("PartDesign::Pocket", "Pocket001")
body.addObject(pocket2)
pocket2.Profile = sketch3
pocket2.Length = 1

# Sketch on YZ plane
sketch4 = doc.addObject("Sketcher::SketchObject", "Sketch003")
body.addObject(sketch4)
sketch4.AttachmentSupport = (doc.YZ_Plane, [""])
sketch4.MapMode = "FlatFace"
sketch4.AttachmentOffset = App.Placement(App.Vector(0, 0, -29.998275), App.Rotation())
sketch4.addGeometry(Part.LineSegment(App.Vector(2.689061, -25.651093, 0), App.Vector(5.595475, -24.371994, 0)), False)
sketch4.addGeometry(Part.LineSegment(App.Vector(5.595475, -24.371994, 0), App.Vector(8.156414, -26.249473, 0)), False)
sketch4.addGeometry(Part.LineSegment(App.Vector(8.156414, -26.249473, 0), App.Vector(7.810939, -29.40605, 0)), False)
sketch4.addGeometry(Part.LineSegment(App.Vector(7.810939, -29.40605, 0), App.Vector(4.904525, -30.685149, 0)), False)
sketch4.addGeometry(Part.LineSegment(App.Vector(4.904525, -30.685149, 0), App.Vector(2.343586, -28.80767, 0)), False)
sketch4.addGeometry(Part.LineSegment(App.Vector(2.343586, -28.80767, 0), App.Vector(2.689061, -25.651093, 0)), False)
sketch4.addGeometry(Part.LineSegment(App.Vector(2.493828, 44.048404, 0), App.Vector(5.237615, 45.646831, 0)), False)
sketch4.addGeometry(Part.LineSegment(App.Vector(5.237615, 45.646831, 0), App.Vector(7.993786, 44.069856, 0)), False)
sketch4.addGeometry(Part.LineSegment(App.Vector(7.993786, 44.069856, 0), App.Vector(8.006172, 40.894453, 0)), False)
sketch4.addGeometry(Part.LineSegment(App.Vector(8.006172, 40.894453, 0), App.Vector(5.262385, 39.296026, 0)), False)
sketch4.addGeometry(Part.LineSegment(App.Vector(5.262385, 39.296026, 0), App.Vector(2.506214, 40.873001, 0)), False)
sketch4.addGeometry(Part.LineSegment(App.Vector(2.506214, 40.873001, 0), App.Vector(2.493828, 44.048404, 0)), False)
sketch4.addConstraint(Sketcher.Constraint("Coincident", 0, 2, 1, 1))
sketch4.addConstraint(Sketcher.Constraint("Coincident", 1, 2, 2, 1))
sketch4.addConstraint(Sketcher.Constraint("Coincident", 2, 2, 3, 1))
sketch4.addConstraint(Sketcher.Constraint("Coincident", 3, 2, 4, 1))
sketch4.addConstraint(Sketcher.Constraint("Coincident", 4, 2, 5, 1))
sketch4.addConstraint(Sketcher.Constraint("Coincident", 5, 2, 0, 1))
sketch4.addConstraint(Sketcher.Constraint("Coincident", 6, 2, 7, 1))
sketch4.addConstraint(Sketcher.Constraint("Coincident", 7, 2, 8, 1))
sketch4.addConstraint(Sketcher.Constraint("Coincident", 8, 2, 9, 1))
sketch4.addConstraint(Sketcher.Constraint("Coincident", 9, 2, 10, 1))
sketch4.addConstraint(Sketcher.Constraint("Coincident", 10, 2, 11, 1))
sketch4.addConstraint(Sketcher.Constraint("Coincident", 11, 2, 6, 1))
sketch4.addConstraint(Sketcher.Constraint("Parallel", 0, 3))
sketch4.addConstraint(Sketcher.Constraint("Parallel", 1, 4))
sketch4.addConstraint(Sketcher.Constraint("Parallel", 2, 5))
sketch4.addConstraint(Sketcher.Constraint("Parallel", 6, 9))
sketch4.addConstraint(Sketcher.Constraint("Parallel", 7, 10))
sketch4.addConstraint(Sketcher.Constraint("Parallel", 8, 11))
sketch4.addConstraint(Sketcher.Constraint("Equal", 0, 1))
sketch4.addConstraint(Sketcher.Constraint("Equal", 1, 2))
sketch4.addConstraint(Sketcher.Constraint("Equal", 2, 3))
sketch4.addConstraint(Sketcher.Constraint("Equal", 5, 6))
sketch4.addConstraint(Sketcher.Constraint("Equal", 6, 7))
sketch4.addConstraint(Sketcher.Constraint("Equal", 7, 8))
sketch4.addConstraint(Sketcher.Constraint("Equal", 8, 9))
sketch4.addConstraint(Sketcher.Constraint("DistanceY", -1, 1, 10, 2, 40.873001))
sketch4.addConstraint(Sketcher.Constraint("DistanceY", 3, 2, 2, 2, 1.279099))
sketch4.addConstraint(Sketcher.Constraint("DistanceX", 6, 2, 1, 2, 2.918799))
sketch4.addConstraint(Sketcher.Constraint("DistanceY", 4, 2, 6, 2, 74.454501))
sketch4.addConstraint(Sketcher.Constraint("DistanceX", 4, 2, 7, 2, 5.6502))
sketch4.addConstraint(Sketcher.Constraint("DistanceX", 9, 2, 7, 2, 2.731401))
sketch4.addConstraint(Sketcher.Constraint("DistanceX", -1, 1, 2, 2, 7.810939))
sketch4.addConstraint(Sketcher.Constraint("DistanceY", 2, 2, -1, 1, 29.40605))
sketch4.addConstraint(Sketcher.Constraint("DistanceY", 4, 2, -1, 1, 28.80767))
sketch4.addConstraint(Sketcher.Constraint("DistanceX", -1, 1, 5, 2, 2.689061))
sketch4.addConstraint(Sketcher.Constraint("DistanceX", -1, 1, 8, 2, 8.006172))
pocket3 = doc.addObject("PartDesign::Pocket", "Pocket002")
body.addObject(pocket3)
pocket3.Profile = sketch4
pocket3.Length = 5
pocket3.Reversed = True

doc.recompute()
